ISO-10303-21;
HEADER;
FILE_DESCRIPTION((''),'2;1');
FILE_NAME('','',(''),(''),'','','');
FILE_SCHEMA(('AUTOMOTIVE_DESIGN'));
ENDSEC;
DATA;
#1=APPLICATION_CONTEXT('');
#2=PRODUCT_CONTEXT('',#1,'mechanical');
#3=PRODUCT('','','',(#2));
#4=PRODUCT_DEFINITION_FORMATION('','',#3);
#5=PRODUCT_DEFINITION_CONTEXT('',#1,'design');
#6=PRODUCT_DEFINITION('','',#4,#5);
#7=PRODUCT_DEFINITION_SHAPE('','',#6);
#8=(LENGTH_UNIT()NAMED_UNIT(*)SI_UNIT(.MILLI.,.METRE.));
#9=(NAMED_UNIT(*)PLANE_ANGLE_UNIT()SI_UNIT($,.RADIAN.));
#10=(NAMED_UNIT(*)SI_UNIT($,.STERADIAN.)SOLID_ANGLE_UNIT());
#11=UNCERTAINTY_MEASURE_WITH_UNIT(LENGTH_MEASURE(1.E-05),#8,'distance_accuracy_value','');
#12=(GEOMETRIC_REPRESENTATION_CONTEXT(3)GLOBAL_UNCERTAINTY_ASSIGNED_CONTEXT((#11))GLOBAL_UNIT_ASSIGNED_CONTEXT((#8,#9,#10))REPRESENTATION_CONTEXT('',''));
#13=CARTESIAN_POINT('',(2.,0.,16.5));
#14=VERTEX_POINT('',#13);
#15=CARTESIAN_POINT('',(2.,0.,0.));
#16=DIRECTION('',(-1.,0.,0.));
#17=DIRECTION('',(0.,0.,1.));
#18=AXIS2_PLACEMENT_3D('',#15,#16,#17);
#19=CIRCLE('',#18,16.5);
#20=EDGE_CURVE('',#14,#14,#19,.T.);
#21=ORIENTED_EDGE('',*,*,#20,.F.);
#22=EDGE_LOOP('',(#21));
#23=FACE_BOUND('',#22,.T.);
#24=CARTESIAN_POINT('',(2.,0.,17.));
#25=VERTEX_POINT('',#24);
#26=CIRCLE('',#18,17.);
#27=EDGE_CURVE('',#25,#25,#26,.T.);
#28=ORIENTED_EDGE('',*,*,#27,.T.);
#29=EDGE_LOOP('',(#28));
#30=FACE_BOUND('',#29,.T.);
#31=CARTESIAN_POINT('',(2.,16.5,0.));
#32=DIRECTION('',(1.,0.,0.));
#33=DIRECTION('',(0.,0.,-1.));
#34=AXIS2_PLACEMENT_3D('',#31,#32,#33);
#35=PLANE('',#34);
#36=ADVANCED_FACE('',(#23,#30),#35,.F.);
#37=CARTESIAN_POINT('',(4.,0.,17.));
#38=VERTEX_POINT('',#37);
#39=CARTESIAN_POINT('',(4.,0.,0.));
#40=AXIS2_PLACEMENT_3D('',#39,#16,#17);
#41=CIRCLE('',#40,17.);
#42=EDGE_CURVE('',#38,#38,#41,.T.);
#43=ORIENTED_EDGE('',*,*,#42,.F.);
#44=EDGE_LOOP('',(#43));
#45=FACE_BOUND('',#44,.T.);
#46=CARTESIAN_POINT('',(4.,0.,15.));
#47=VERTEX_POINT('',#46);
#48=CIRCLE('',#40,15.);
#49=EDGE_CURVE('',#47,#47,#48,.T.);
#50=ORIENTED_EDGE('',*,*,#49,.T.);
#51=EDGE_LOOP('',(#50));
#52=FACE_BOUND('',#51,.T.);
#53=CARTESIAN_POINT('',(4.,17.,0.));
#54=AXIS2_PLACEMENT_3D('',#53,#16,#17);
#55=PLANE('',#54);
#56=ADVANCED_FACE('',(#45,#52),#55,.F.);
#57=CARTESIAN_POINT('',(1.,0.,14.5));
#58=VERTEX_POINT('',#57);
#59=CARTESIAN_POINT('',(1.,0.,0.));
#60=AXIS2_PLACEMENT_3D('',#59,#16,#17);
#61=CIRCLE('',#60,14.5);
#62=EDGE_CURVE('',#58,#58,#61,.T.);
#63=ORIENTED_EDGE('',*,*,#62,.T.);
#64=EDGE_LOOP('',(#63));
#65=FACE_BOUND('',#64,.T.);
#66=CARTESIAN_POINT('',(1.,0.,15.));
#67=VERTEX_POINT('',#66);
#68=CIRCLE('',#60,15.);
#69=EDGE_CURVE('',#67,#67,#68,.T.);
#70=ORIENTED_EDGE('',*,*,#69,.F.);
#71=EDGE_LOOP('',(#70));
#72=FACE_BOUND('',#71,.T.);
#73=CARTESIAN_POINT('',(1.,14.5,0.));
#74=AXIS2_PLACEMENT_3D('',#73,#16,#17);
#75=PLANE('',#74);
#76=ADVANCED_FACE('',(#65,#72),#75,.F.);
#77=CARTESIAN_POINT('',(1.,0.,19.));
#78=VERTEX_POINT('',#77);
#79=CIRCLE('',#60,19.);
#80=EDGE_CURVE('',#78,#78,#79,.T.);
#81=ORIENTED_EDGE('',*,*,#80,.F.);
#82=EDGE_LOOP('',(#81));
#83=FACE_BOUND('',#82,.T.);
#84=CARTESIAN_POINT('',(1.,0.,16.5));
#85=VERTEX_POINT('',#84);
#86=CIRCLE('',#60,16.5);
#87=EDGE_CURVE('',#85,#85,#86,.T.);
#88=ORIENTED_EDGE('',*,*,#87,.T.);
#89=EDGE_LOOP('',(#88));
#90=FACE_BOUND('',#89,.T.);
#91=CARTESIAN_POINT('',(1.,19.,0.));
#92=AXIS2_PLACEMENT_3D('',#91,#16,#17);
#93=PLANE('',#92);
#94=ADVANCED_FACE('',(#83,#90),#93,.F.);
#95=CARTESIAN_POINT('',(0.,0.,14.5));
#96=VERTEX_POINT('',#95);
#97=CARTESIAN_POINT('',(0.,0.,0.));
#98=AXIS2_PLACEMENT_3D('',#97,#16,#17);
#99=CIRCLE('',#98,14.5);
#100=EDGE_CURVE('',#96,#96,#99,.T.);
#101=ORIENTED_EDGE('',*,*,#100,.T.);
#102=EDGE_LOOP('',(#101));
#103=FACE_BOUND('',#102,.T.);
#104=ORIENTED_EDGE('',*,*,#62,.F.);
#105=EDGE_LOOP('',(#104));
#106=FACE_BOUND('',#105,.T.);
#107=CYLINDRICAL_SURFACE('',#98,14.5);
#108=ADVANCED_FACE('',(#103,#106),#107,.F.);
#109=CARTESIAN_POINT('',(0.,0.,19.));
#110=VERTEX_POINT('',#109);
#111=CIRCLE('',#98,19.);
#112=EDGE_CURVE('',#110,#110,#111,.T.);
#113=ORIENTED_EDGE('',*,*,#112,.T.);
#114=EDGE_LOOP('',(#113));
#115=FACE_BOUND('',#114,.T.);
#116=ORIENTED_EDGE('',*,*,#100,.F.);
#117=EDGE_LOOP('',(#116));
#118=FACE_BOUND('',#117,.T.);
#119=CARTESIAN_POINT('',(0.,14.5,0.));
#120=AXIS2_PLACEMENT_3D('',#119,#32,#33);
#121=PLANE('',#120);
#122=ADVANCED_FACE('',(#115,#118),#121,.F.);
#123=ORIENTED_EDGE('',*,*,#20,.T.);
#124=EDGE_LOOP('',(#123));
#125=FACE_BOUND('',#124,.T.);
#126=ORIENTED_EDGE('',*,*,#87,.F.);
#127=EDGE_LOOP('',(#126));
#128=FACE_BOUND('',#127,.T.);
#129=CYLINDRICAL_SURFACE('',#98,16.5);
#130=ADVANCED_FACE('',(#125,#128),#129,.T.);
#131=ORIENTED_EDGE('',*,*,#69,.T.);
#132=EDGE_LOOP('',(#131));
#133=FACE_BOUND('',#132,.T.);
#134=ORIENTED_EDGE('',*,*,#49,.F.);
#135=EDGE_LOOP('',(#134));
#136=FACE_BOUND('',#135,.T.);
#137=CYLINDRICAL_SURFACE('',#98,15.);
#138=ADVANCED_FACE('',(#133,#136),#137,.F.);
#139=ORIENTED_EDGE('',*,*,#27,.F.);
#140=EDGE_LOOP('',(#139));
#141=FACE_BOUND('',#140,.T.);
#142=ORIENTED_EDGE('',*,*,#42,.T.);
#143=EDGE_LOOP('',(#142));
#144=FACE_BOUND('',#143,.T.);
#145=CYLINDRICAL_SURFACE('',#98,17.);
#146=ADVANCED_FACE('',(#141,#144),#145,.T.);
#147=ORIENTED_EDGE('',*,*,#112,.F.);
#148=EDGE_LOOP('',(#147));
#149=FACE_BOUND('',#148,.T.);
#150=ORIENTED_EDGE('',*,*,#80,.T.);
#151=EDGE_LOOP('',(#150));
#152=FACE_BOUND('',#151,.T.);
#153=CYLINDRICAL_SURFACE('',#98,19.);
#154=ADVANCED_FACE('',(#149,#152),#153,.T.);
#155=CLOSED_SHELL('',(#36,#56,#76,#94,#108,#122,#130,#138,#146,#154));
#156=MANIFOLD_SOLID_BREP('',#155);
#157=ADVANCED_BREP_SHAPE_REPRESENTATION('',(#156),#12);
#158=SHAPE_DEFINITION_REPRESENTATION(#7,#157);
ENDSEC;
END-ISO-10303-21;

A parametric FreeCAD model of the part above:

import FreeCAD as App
import Part
import Sketcher

doc = App.newDocument("Part")
body = doc.addObject("PartDesign::Body", "Body")

# Sketch on XY plane
sketch1 = body.newObject("Sketcher::SketchObject", "Sketch")
sketch1.AttachmentSupport = (doc.getObject("XY_Plane"), [""])
sketch1.MapMode = "FlatFace"
sketch1.addGeometry([
    Part.LineSegment(App.Vector(1, 19, 0), App.Vector(0, 19, 0)),  # 0
    Part.LineSegment(App.Vector(0, 19, 0), App.Vector(0, 14.5, 0)),  # 1
    Part.LineSegment(App.Vector(0, 14.5, 0), App.Vector(1, 14.5, 0)),  # 2
    Part.LineSegment(App.Vector(1, 14.5, 0), App.Vector(1, 15, 0)),  # 3
    Part.LineSegment(App.Vector(1, 15, 0), App.Vector(4, 15, 0)),  # 4
    Part.LineSegment(App.Vector(4, 15, 0), App.Vector(4, 17, 0)),  # 5
    Part.LineSegment(App.Vector(4, 17, 0), App.Vector(2, 17, 0)),  # 6
    Part.LineSegment(App.Vector(2, 17, 0), App.Vector(2, 16.5, 0)),  # 7
    Part.LineSegment(App.Vector(2, 16.5, 0), App.Vector(1, 16.5, 0)),  # 8
    Part.LineSegment(App.Vector(1, 16.5, 0), App.Vector(1, 19, 0)),  # 9
], False)
sketch1.addConstraint([
    Sketcher.Constraint("Coincident", 0, 2, 1, 1),
    Sketcher.Constraint("Coincident", 1, 2, 2, 1),
    Sketcher.Constraint("Coincident", 2, 2, 3, 1),
    Sketcher.Constraint("Coincident", 3, 2, 4, 1),
    Sketcher.Constraint("Coincident", 4, 2, 5, 1),
    Sketcher.Constraint("Coincident", 5, 2, 6, 1),
    Sketcher.Constraint("Coincident", 6, 2, 7, 1),
    Sketcher.Constraint("Coincident", 7, 2, 8, 1),
    Sketcher.Constraint("Coincident", 8, 2, 9, 1),
    Sketcher.Constraint("Coincident", 9, 2, 0, 1),
    Sketcher.Constraint("Horizontal", 0),
    Sketcher.Constraint("Vertical", 1),
    Sketcher.Constraint("Horizontal", 2),
    Sketcher.Constraint("Vertical", 3),
    Sketcher.Constraint("Horizontal", 4),
    Sketcher.Constraint("Vertical", 5),
    Sketcher.Constraint("Horizontal", 6),
    Sketcher.Constraint("Vertical", 7),
    Sketcher.Constraint("Horizontal", 8),
    Sketcher.Constraint("Vertical", 9),
    Sketcher.Constraint("PointOnObject", 0, 2, -2),
    Sketcher.Constraint("Vertical", 3, 2, 8, 2),
    Sketcher.Constraint("Equal", 2, 8),
    Sketcher.Constraint("Equal", 6, 5),
    Sketcher.Constraint("Equal", 3, 7),
    Sketcher.Constraint("DistanceX", 0, 2, 0, 1, 1.0),
    Sketcher.Constraint("DistanceX", 4, 1, 4, 2, 3.0),
    Sketcher.Constraint("DistanceY", 1, 2, 1, 1, 4.5),
    Sketcher.Constraint("DistanceY", 3, 1, 3, 2, 0.5),
    Sketcher.Constraint("DistanceY", -1, 1, 0, 2, 19.0),
])
revolution = body.newObject("PartDesign::Revolution", "Revolution")
revolution.Profile = sketch1
revolution.ReferenceAxis = (sketch1, ["H_Axis"])
revolution.Angle = 360

doc.recompute()
